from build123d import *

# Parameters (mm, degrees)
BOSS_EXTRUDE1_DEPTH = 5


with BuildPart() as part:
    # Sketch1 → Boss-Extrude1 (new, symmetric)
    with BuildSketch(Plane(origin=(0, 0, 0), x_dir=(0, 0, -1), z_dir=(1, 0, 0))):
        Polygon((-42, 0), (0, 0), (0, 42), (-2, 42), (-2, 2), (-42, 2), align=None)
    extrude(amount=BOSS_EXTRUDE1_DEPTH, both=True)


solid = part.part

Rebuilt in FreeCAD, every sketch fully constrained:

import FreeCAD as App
import Part
import Sketcher

V = App.Vector

doc = App.newDocument("Part")
body = doc.addObject("PartDesign::Body", "Body")

sketch1 = body.newObject("Sketcher::SketchObject", "Sketch")
sketch1.AttachmentSupport = (doc.getObject("YZ_Plane"), [""])
sketch1.MapMode = "FlatFace"
sketch1.addGeometry([
    Part.LineSegment(V(0, 42, 0), V(0, 0, 0)),
    Part.LineSegment(V(0, 0, 0), V(42, 0, 0)),
    Part.LineSegment(V(42, 0, 0), V(42, 2, 0)),
    Part.LineSegment(V(42, 2, 0), V(2, 2, 0)),
    Part.LineSegment(V(2, 2, 0), V(2, 42, 0)),
    Part.LineSegment(V(2, 42, 0), V(0, 42, 0)),
], False)
sketch1.addConstraint([
    Sketcher.Constraint("Coincident", 0, 2, 1, 1),
    Sketcher.Constraint("Coincident", 1, 2, 2, 1),
    Sketcher.Constraint("Coincident", 2, 2, 3, 1),
    Sketcher.Constraint("Coincident", 3, 2, 4, 1),
    Sketcher.Constraint("Coincident", 4, 2, 5, 1),
    Sketcher.Constraint("Coincident", 5, 2, 0, 1),
    Sketcher.Constraint("Vertical", 0),
    Sketcher.Constraint("Horizontal", 1),
    Sketcher.Constraint("Vertical", 2),
    Sketcher.Constraint("Horizontal", 3),
    Sketcher.Constraint("Vertical", 4),
    Sketcher.Constraint("Horizontal", 5),
    Sketcher.Constraint("Coincident", 0, 2, -1, 1),
    Sketcher.Constraint("Equal", 1, 0),
    Sketcher.Constraint("Equal", 5, 2),
    Sketcher.Constraint("DistanceX", 1, 1, 1, 2, 42.0),
    Sketcher.Constraint("DistanceX", 3, 2, 3, 1, 40.0),
])
pad1 = body.newObject("PartDesign::Pad", "Pad")
pad1.Profile = sketch1
pad1.Length = 10
pad1.Midplane = True

doc.recompute()
